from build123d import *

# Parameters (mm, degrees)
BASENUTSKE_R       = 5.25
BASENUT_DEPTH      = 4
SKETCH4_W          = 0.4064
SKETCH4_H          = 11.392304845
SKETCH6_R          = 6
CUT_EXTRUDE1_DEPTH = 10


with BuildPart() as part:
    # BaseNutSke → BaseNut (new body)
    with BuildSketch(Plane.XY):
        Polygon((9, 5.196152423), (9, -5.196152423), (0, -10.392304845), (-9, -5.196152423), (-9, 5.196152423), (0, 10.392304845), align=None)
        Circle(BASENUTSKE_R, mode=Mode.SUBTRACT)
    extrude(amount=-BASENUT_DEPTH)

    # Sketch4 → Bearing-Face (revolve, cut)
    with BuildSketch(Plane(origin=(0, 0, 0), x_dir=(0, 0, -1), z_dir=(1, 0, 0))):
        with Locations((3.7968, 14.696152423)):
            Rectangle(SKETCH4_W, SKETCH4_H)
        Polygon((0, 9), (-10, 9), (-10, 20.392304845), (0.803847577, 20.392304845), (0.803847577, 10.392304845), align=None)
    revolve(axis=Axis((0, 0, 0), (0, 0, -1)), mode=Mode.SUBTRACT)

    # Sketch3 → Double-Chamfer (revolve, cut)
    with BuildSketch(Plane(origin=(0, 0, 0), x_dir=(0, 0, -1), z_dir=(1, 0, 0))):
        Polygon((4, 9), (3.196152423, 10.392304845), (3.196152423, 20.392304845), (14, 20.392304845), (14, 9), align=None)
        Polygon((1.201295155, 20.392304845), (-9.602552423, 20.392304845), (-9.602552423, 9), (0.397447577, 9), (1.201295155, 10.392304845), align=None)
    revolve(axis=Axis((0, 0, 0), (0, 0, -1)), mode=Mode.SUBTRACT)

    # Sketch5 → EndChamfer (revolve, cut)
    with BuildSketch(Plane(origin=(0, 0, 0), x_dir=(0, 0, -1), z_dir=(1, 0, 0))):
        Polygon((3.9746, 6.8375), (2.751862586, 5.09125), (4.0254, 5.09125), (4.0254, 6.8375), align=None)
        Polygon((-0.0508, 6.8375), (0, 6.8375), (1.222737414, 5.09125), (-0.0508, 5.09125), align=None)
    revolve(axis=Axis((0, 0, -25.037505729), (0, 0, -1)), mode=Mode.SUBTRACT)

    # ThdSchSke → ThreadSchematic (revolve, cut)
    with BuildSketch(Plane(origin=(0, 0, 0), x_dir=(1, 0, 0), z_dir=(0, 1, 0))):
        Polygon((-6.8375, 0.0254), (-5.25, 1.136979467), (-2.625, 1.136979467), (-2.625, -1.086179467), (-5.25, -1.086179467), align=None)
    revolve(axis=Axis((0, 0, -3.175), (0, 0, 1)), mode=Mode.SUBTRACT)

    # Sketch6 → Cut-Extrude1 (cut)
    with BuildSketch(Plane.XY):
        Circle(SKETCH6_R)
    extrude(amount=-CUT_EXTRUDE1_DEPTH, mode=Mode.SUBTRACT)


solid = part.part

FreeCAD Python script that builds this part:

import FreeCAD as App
import Part
import Sketcher

V = App.Vector
Q = App.Units.Quantity

doc = App.newDocument("Part")
body = doc.addObject("PartDesign::Body", "Body")

# Sketch on XY plane
sketch1 = body.newObject("Sketcher::SketchObject", "Sketch")
sketch1.AttachmentSupport = (doc.getObject("XY_Plane"), [""])
sketch1.MapMode = "FlatFace"
sketch1.addGeometry(Part.LineSegment(V(9, -5, 0), V(9, 5, 0)), False)
sketch1.addGeometry(Part.LineSegment(V(9, 5, 0), V(0, 10, 0)), False)
sketch1.addGeometry(Part.LineSegment(V(0, 10, 0), V(-9, 5, 0)), False)
sketch1.addGeometry(Part.LineSegment(V(-9, 5, 0), V(-9, -5, 0)), False)
sketch1.addGeometry(Part.LineSegment(V(-9, -5, 0), V(0, -10, 0)), False)
sketch1.addGeometry(Part.LineSegment(V(0, -10, 0), V(9, -5, 0)), False)
sketch1.addGeometry(Part.Circle(V(0, 0, 0), V(0, 0, 1), 5), False)
sketch1.addConstraint(Sketcher.Constraint("Coincident", 0, 2, 1, 1))
sketch1.addConstraint(Sketcher.Constraint("Coincident", 1, 2, 2, 1))
sketch1.addConstraint(Sketcher.Constraint("Coincident", 2, 2, 3, 1))
sketch1.addConstraint(Sketcher.Constraint("Coincident", 3, 2, 4, 1))
sketch1.addConstraint(Sketcher.Constraint("Coincident", 4, 2, 5, 1))
sketch1.addConstraint(Sketcher.Constraint("Coincident", 5, 2, 0, 1))
sketch1.addConstraint(Sketcher.Constraint("Vertical", 0))
sketch1.addConstraint(Sketcher.Constraint("Vertical", 3))
sketch1.addConstraint(Sketcher.Constraint("Coincident", 6, 3, -1, 1))
sketch1.addConstraint(Sketcher.Constraint("Symmetric", 0, 2, 3, 2, -1, 1))
sketch1.addConstraint(Sketcher.Constraint("Symmetric", 1, 2, 4, 2, -1, 1))
sketch1.addConstraint(Sketcher.Constraint("PointOnObject", 1, 2, -2))
sketch1.addConstraint(Sketcher.Constraint("Parallel", 2, 5))
sketch1.addConstraint(Sketcher.Constraint("Horizontal", 0, 2, 2, 2))
sketch1.addConstraint(Sketcher.Constraint("Diameter", 6, Q("10.5 mm")))
sketch1.addConstraint(Sketcher.Constraint("Angle", 1, Q("150 deg")))
sketch1.addConstraint(Sketcher.Constraint("DistanceX", -1, 1, 0, 2, Q("9 mm")))
sketch1.addConstraint(Sketcher.Constraint("DistanceY", 0, 1, 0, 2, Q("10.392305 mm")))
pad1 = body.newObject("PartDesign::Pad", "Pad")
pad1.Profile = sketch1
pad1.Length = 4
pad1.Reversed = True

# Sketch on YZ plane
sketch2 = body.newObject("Sketcher::SketchObject", "Sketch001")
sketch2.AttachmentSupport = (doc.getObject("YZ_Plane"), [""])
sketch2.MapMode = "FlatFace"
sketch2.addGeometry(Part.LineSegment(V(20.39, -3.59, 0), V(9, -3.59, 0)), False)
sketch2.addGeometry(Part.LineSegment(V(9, -3.59, 0), V(9, -4, 0)), False)
sketch2.addGeometry(Part.LineSegment(V(9, -4, 0), V(20.39, -4, 0)), False)
sketch2.addGeometry(Part.LineSegment(V(20.39, -4, 0), V(20.39, -3.59, 0)), False)
sketch2.addGeometry(Part.LineSegment(V(9, 10, 0), V(9, 0, 0)), False)
sketch2.addGeometry(Part.LineSegment(V(9, 0, 0), V(10.39, -0.8, 0)), False)
sketch2.addGeometry(Part.LineSegment(V(10.39, -0.8, 0), V(20.39, -0.8, 0)), False)
sketch2.addGeometry(Part.LineSegment(V(20.39, -0.8, 0), V(20.39, 10, 0)), False)
sketch2.addGeometry(Part.LineSegment(V(20.39, 10, 0), V(9, 10, 0)), False)
sketch2.addConstraint(Sketcher.Constraint("Coincident", 0, 2, 1, 1))
sketch2.addConstraint(Sketcher.Constraint("Coincident", 1, 2, 2, 1))
sketch2.addConstraint(Sketcher.Constraint("Coincident", 2, 2, 3, 1))
sketch2.addConstraint(Sketcher.Constraint("Coincident", 3, 2, 0, 1))
sketch2.addConstraint(Sketcher.Constraint("Coincident", 4, 2, 5, 1))
sketch2.addConstraint(Sketcher.Constraint("Coincident", 5, 2, 6, 1))
sketch2.addConstraint(Sketcher.Constraint("Coincident", 6, 2, 7, 1))
sketch2.addConstraint(Sketcher.Constraint("Coincident", 7, 2, 8, 1))
sketch2.addConstraint(Sketcher.Constraint("Coincident", 8, 2, 4, 1))
sketch2.addConstraint(Sketcher.Constraint("Horizontal", 0))
sketch2.addConstraint(Sketcher.Constraint("Vertical", 1))
sketch2.addConstraint(Sketcher.Constraint("Horizontal", 2))
sketch2.addConstraint(Sketcher.Constraint("Vertical", 3))
sketch2.addConstraint(Sketcher.Constraint("Vertical", 4))
sketch2.addConstraint(Sketcher.Constraint("Horizontal", 6))
sketch2.addConstraint(Sketcher.Constraint("Vertical", 7))
sketch2.addConstraint(Sketcher.Constraint("Horizontal", 8))
sketch2.addConstraint(Sketcher.Constraint("PointOnObject", 4, 2, -1))
sketch2.addConstraint(Sketcher.Constraint("Vertical", 1, 2, 4, 2))
sketch2.addConstraint(Sketcher.Constraint("Vertical", 3, 2, 6, 2))
sketch2.addConstraint(Sketcher.Constraint("Equal", 6, 4))
sketch2.addConstraint(Sketcher.Constraint("DistanceX", 6, 1, 6, 2, Q("10 mm")))
sketch2.addConstraint(Sketcher.Constraint("Angle", 5, Q("-30 deg")))
sketch2.addConstraint(Sketcher.Constraint("DistanceX", -1, 1, 0, 2, Q("9 mm")))
sketch2.addConstraint(Sketcher.Constraint("DistanceY", 1, 2, -1, 1, Q("4 mm")))
sketch2.addConstraint(Sketcher.Constraint("DistanceY", 1, 2, 1, 1, Q("0.4064 mm")))
sketch2.addConstraint(Sketcher.Constraint("DistanceX", 0, 2, 0, 1, Q("11.392305 mm")))
groove = body.newObject("PartDesign::Groove", "Groove")
groove.Profile = sketch2
groove.ReferenceAxis = (sketch2, ["V_Axis"])
groove.Angle = 360

# Sketch on YZ plane
sketch3 = body.newObject("Sketcher::SketchObject", "Sketch002")
sketch3.AttachmentSupport = (doc.getObject("YZ_Plane"), [""])
sketch3.MapMode = "FlatFace"
sketch3.addGeometry(Part.LineSegment(V(10.4, -3.2, 0), V(9, -4, 0)), False)
sketch3.addGeometry(Part.LineSegment(V(9, -4, 0), V(9, -14, 0)), False)
sketch3.addGeometry(Part.LineSegment(V(9, -14, 0), V(20.4, -14, 0)), False)
sketch3.addGeometry(Part.LineSegment(V(20.4, -14, 0), V(20.4, -3.2, 0)), False)
sketch3.addGeometry(Part.LineSegment(V(20.4, -3.2, 0), V(10.4, -3.2, 0)), False)
sketch3.addGeometry(Part.LineSegment(V(20.4, -1.2, 0), V(20.4, 9.6, 0)), False)
sketch3.addGeometry(Part.LineSegment(V(20.4, 9.6, 0), V(9, 9.6, 0)), False)
sketch3.addGeometry(Part.LineSegment(V(9, 9.6, 0), V(9, -0.4, 0)), False)
sketch3.addGeometry(Part.LineSegment(V(9, -0.4, 0), V(10.4, -1.2, 0)), False)
sketch3.addGeometry(Part.LineSegment(V(10.4, -1.2, 0), V(20.4, -1.2, 0)), False)
sketch3.addConstraint(Sketcher.Constraint("Coincident", 0, 2, 1, 1))
sketch3.addConstraint(Sketcher.Constraint("Coincident", 1, 2, 2, 1))
sketch3.addConstraint(Sketcher.Constraint("Coincident", 2, 2, 3, 1))
sketch3.addConstraint(Sketcher.Constraint("Coincident", 3, 2, 4, 1))
sketch3.addConstraint(Sketcher.Constraint("Coincident", 4, 2, 0, 1))
sketch3.addConstraint(Sketcher.Constraint("Coincident", 5, 2, 6, 1))
sketch3.addConstraint(Sketcher.Constraint("Coincident", 6, 2, 7, 1))
sketch3.addConstraint(Sketcher.Constraint("Coincident", 7, 2, 8, 1))
sketch3.addConstraint(Sketcher.Constraint("Coincident", 8, 2, 9, 1))
sketch3.addConstraint(Sketcher.Constraint("Coincident", 9, 2, 5, 1))
sketch3.addConstraint(Sketcher.Constraint("Vertical", 1))
sketch3.addConstraint(Sketcher.Constraint("Horizontal", 2))
sketch3.addConstraint(Sketcher.Constraint("Vertical", 3))
sketch3.addConstraint(Sketcher.Constraint("Horizontal", 4))
sketch3.addConstraint(Sketcher.Constraint("Vertical", 5))
sketch3.addConstraint(Sketcher.Constraint("Horizontal", 6))
sketch3.addConstraint(Sketcher.Constraint("Vertical", 7))
sketch3.addConstraint(Sketcher.Constraint("Horizontal", 9))
sketch3.addConstraint(Sketcher.Constraint("Vertical", 3, 2, 5, 2))
sketch3.addConstraint(Sketcher.Constraint("Vertical", 1, 2, 6, 2))
sketch3.addConstraint(Sketcher.Constraint("Vertical", 4, 2, 8, 2))
sketch3.addConstraint(Sketcher.Constraint("Equal", 9, 1))
sketch3.addConstraint(Sketcher.Constraint("Equal", 3, 5))
sketch3.addConstraint(Sketcher.Constraint("Equal", 1, 7))
sketch3.addConstraint(Sketcher.Constraint("DistanceX", 4, 2, 4, 1, Q("10 mm")))
sketch3.addConstraint(Sketcher.Constraint("Angle", 0, Q("-150 deg")))
sketch3.addConstraint(Sketcher.Constraint("DistanceX", -1, 1, 0, 2, Q("9 mm")))
sketch3.addConstraint(Sketcher.Constraint("DistanceY", 0, 2, -1, 1, Q("4 mm")))
sketch3.addConstraint(Sketcher.Constraint("DistanceX", 2, 1, 2, 2, Q("11.392305 mm")))
sketch3.addConstraint(Sketcher.Constraint("DistanceY", -1, 1, 5, 2, Q("9.602552 mm")))
groove2 = body.newObject("PartDesign::Groove", "Groove001")
groove2.Profile = sketch3
groove2.ReferenceAxis = (sketch3, ["V_Axis"])
groove2.Angle = 360

# Sketch on YZ plane
sketch4 = body.newObject("Sketcher::SketchObject", "Sketch003")
sketch4.AttachmentSupport = (doc.getObject("YZ_Plane"), [""])
sketch4.MapMode = "FlatFace"
sketch4.addGeometry(Part.LineSegment(V(6.84, -3.97, 0), V(5.09, -2.75, 0)), False)
sketch4.addGeometry(Part.LineSegment(V(5.09, -2.75, 0), V(5.09, -4.03, 0)), False)
sketch4.addGeometry(Part.LineSegment(V(5.09, -4.03, 0), V(6.84, -4.03, 0)), False)
sketch4.addGeometry(Part.LineSegment(V(6.84, -4.03, 0), V(6.84, -3.97, 0)), False)
sketch4.addGeometry(Part.LineSegment(V(6.84, 0, 0), V(6.84, 0.05, 0)), False)
sketch4.addGeometry(Part.LineSegment(V(6.84, 0.05, 0), V(5.09, 0.05, 0)), False)
sketch4.addGeometry(Part.LineSegment(V(5.09, 0.05, 0), V(5.09, -1.22, 0)), False)
sketch4.addGeometry(Part.LineSegment(V(5.09, -1.22, 0), V(6.84, 0, 0)), False)
sketch4.addConstraint(Sketcher.Constraint("Coincident", 0, 2, 1, 1))
sketch4.addConstraint(Sketcher.Constraint("Coincident", 1, 2, 2, 1))
sketch4.addConstraint(Sketcher.Constraint("Coincident", 2, 2, 3, 1))
sketch4.addConstraint(Sketcher.Constraint("Coincident", 3, 2, 0, 1))
sketch4.addConstraint(Sketcher.Constraint("Coincident", 4, 2, 5, 1))
sketch4.addConstraint(Sketcher.Constraint("Coincident", 5, 2, 6, 1))
sketch4.addConstraint(Sketcher.Constraint("Coincident", 6, 2, 7, 1))
sketch4.addConstraint(Sketcher.Constraint("Coincident", 7, 2, 4, 1))
sketch4.addConstraint(Sketcher.Constraint("Vertical", 1))
sketch4.addConstraint(Sketcher.Constraint("Horizontal", 2))
sketch4.addConstraint(Sketcher.Constraint("Vertical", 3))
sketch4.addConstraint(Sketcher.Constraint("Vertical", 4))
sketch4.addConstraint(Sketcher.Constraint("Horizontal", 5))
sketch4.addConstraint(Sketcher.Constraint("Vertical", 6))
sketch4.addConstraint(Sketcher.Constraint("PointOnObject", 7, 2, -1))
sketch4.addConstraint(Sketcher.Constraint("Vertical", 3, 2, 4, 2))
sketch4.addConstraint(Sketcher.Constraint("Vertical", 1, 2, 5, 2))
sketch4.addConstraint(Sketcher.Constraint("Equal", 3, 4))
sketch4.addConstraint(Sketcher.Constraint("Equal", 1, 6))
sketch4.addConstraint(Sketcher.Constraint("Angle", 0, Q("145 deg")))
sketch4.addConstraint(Sketcher.Constraint("DistanceY", 3, 1, 3, 2, Q("0.0508 mm")))
sketch4.addConstraint(Sketcher.Constraint("DistanceX", 2, 1, 2, 2, Q("1.74625 mm")))
sketch4.addConstraint(Sketcher.Constraint("DistanceY", 1, 2, -1, 1, Q("4.0254 mm")))
sketch4.addConstraint(Sketcher.Constraint("DistanceX", -1, 1, 2, 2, Q("6.8375 mm")))
groove3 = body.newObject("PartDesign::Groove", "Groove002")
groove3.Profile = sketch4
groove3.ReferenceAxis = (sketch4, ["V_Axis"])
groove3.Angle = 360

# Sketch on XZ plane
sketch5 = body.newObject("Sketcher::SketchObject", "Sketch004")
sketch5.AttachmentSupport = (doc.getObject("XZ_Plane"), [""])
sketch5.MapMode = "FlatFace"
sketch5.addGeometry(Part.LineSegment(V(-5.2, -1.1, 0), V(-6.8, 0, 0)), False)
sketch5.addGeometry(Part.LineSegment(V(-6.8, 0, 0), V(-5.2, 1.1, 0)), False)
sketch5.addGeometry(Part.LineSegment(V(-5.2, 1.1, 0), V(-2.6, 1.1, 0)), False)
sketch5.addGeometry(Part.LineSegment(V(-2.6, 1.1, 0), V(-2.6, -1.1, 0)), False)
sketch5.addGeometry(Part.LineSegment(V(-2.6, -1.1, 0), V(-5.2, -1.1, 0)), False)
sketch5.addConstraint(Sketcher.Constraint("Coincident", 0, 2, 1, 1))
sketch5.addConstraint(Sketcher.Constraint("Coincident", 1, 2, 2, 1))
sketch5.addConstraint(Sketcher.Constraint("Coincident", 2, 2, 3, 1))
sketch5.addConstraint(Sketcher.Constraint("Coincident", 3, 2, 4, 1))
sketch5.addConstraint(Sketcher.Constraint("Coincident", 4, 2, 0, 1))
sketch5.addConstraint(Sketcher.Constraint("Horizontal", 2))
sketch5.addConstraint(Sketcher.Constraint("Vertical", 3))
sketch5.addConstraint(Sketcher.Constraint("Horizontal", 4))
sketch5.addConstraint(Sketcher.Constraint("Vertical", 1, 2, 4, 2))
sketch5.addConstraint(Sketcher.Constraint("Equal", 0, 1))
sketch5.addConstraint(Sketcher.Constraint("Angle", 0, Q("145 deg")))
sketch5.addConstraint(Sketcher.Constraint("DistanceX", 2, 1, 2, 2, Q("2.625 mm")))
sketch5.addConstraint(Sketcher.Constraint("DistanceX", 1, 2, -1, 1, Q("5.25 mm")))
sketch5.addConstraint(Sketcher.Constraint("DistanceY", 3, 2, 3, 1, Q("2.223159 mm")))
sketch5.addConstraint(Sketcher.Constraint("DistanceY", 0, 2, -1, 1, Q("0.0254 mm")))
groove4 = body.newObject("PartDesign::Groove", "Groove003")
groove4.Profile = sketch5
groove4.ReferenceAxis = (sketch5, ["V_Axis"])
groove4.Angle = 360

# Sketch on XY plane
sketch6 = body.newObject("Sketcher::SketchObject", "Sketch005")
sketch6.AttachmentSupport = (doc.getObject("XY_Plane"), [""])
sketch6.MapMode = "FlatFace"
sketch6.addGeometry(Part.Circle(V(0, 0, 0), V(0, 0, 1), 6), False)
sketch6.addConstraint(Sketcher.Constraint("Coincident", 0, 3, -1, 1))
sketch6.addConstraint(Sketcher.Constraint("Diameter", 0, Q("12 mm")))
pocket1 = body.newObject("PartDesign::Pocket", "Pocket")
pocket1.Profile = sketch6
pocket1.Length = 10

doc.recompute()
